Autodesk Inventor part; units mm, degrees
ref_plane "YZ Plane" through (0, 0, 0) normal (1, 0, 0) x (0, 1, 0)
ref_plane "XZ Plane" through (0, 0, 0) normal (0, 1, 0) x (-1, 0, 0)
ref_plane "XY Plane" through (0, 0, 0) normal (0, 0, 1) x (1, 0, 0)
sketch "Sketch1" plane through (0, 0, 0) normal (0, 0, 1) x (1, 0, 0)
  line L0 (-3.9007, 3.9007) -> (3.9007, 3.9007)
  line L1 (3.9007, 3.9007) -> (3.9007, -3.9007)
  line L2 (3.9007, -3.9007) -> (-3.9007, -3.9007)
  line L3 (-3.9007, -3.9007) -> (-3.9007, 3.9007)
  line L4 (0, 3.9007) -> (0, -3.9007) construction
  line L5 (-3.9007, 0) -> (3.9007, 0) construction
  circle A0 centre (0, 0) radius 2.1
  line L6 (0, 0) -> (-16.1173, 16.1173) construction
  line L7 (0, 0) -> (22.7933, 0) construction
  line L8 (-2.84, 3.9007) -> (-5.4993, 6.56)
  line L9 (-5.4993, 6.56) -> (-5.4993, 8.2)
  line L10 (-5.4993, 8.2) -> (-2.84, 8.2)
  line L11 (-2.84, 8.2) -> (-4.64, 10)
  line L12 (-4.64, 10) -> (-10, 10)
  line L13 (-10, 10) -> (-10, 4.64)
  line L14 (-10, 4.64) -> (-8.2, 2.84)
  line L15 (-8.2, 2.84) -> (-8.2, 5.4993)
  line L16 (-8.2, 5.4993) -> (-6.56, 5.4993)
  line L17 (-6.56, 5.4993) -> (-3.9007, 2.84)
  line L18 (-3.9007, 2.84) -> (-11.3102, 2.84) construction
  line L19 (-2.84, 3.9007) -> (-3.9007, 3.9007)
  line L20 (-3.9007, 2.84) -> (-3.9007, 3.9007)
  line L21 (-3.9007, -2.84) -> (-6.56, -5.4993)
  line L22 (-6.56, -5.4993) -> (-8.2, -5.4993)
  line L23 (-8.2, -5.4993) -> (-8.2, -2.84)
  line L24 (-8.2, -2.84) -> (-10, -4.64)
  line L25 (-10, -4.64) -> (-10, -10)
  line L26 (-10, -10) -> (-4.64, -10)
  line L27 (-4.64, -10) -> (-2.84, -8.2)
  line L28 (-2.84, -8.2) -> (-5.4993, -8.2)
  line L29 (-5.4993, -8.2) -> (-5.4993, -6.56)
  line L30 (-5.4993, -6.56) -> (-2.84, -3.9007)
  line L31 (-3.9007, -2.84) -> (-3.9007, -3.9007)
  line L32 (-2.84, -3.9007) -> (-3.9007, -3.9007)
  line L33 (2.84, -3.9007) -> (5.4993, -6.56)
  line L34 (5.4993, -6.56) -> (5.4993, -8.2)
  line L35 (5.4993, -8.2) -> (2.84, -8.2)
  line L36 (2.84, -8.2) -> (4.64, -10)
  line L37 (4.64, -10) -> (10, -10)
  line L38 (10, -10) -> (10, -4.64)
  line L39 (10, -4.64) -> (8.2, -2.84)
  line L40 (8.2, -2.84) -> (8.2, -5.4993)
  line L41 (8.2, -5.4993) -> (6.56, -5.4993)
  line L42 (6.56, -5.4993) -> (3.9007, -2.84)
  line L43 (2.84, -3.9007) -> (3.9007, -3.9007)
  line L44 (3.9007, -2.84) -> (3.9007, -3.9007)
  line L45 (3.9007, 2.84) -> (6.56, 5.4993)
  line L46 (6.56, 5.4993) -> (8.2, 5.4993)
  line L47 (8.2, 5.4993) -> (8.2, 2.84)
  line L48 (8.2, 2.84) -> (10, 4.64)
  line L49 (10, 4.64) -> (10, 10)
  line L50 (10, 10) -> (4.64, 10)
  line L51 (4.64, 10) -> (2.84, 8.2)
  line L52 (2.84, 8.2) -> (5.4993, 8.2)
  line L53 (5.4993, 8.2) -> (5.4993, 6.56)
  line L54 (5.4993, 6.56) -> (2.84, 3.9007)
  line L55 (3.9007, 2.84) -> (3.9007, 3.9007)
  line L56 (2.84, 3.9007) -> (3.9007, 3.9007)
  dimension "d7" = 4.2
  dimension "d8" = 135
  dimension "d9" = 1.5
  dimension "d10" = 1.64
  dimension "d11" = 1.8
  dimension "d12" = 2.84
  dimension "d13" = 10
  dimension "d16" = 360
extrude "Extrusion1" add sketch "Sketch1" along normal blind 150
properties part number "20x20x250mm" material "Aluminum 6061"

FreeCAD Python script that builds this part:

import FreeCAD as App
import Part
import Sketcher

V = App.Vector
Q = App.Units.Quantity

doc = App.newDocument("Part")
body = doc.addObject("PartDesign::Body", "Body")

# Sketch on XY plane
sketch1 = doc.addObject("Sketcher::SketchObject", "Sketch")
body.addObject(sketch1)
sketch1.AttachmentSupport = (doc.XY_Plane, [""])
sketch1.MapMode = "FlatFace"
sketch1.addGeometry([
    Part.LineSegment(V(-6.6, 5.5, 0), V(-3.9, 2.8, 0)),  # 0
    Part.LineSegment(V(-3.9, 2.8, 0), V(-3.9, -2.8, 0)),  # 1
    Part.LineSegment(V(-3.9, -2.8, 0), V(-6.6, -5.5, 0)),  # 2
    Part.LineSegment(V(-6.6, -5.5, 0), V(-8.2, -5.5, 0)),  # 3
    Part.LineSegment(V(-8.2, -5.5, 0), V(-8.2, -2.8, 0)),  # 4
    Part.LineSegment(V(-8.2, -2.8, 0), V(-10, -4.6, 0)),  # 5
    Part.LineSegment(V(-10, -4.6, 0), V(-10, -10, 0)),  # 6
    Part.LineSegment(V(-10, -10, 0), V(-4.6, -10, 0)),  # 7
    Part.LineSegment(V(-4.6, -10, 0), V(-2.8, -8.2, 0)),  # 8
    Part.LineSegment(V(-2.8, -8.2, 0), V(-5.5, -8.2, 0)),  # 9
    Part.LineSegment(V(-5.5, -8.2, 0), V(-5.5, -6.6, 0)),  # 10
    Part.LineSegment(V(-5.5, -6.6, 0), V(-2.8, -3.9, 0)),  # 11
    Part.LineSegment(V(-2.8, -3.9, 0), V(2.8, -3.9, 0)),  # 12
    Part.LineSegment(V(2.8, -3.9, 0), V(5.5, -6.6, 0)),  # 13
    Part.LineSegment(V(5.5, -6.6, 0), V(5.5, -8.2, 0)),  # 14
    Part.LineSegment(V(5.5, -8.2, 0), V(2.8, -8.2, 0)),  # 15
    Part.LineSegment(V(2.8, -8.2, 0), V(4.6, -10, 0)),  # 16
    Part.LineSegment(V(4.6, -10, 0), V(10, -10, 0)),  # 17
    Part.LineSegment(V(10, -10, 0), V(10, -4.6, 0)),  # 18
    Part.LineSegment(V(10, -4.6, 0), V(8.2, -2.8, 0)),  # 19
    Part.LineSegment(V(8.2, -2.8, 0), V(8.2, -5.5, 0)),  # 20
    Part.LineSegment(V(8.2, -5.5, 0), V(6.6, -5.5, 0)),  # 21
    Part.LineSegment(V(6.6, -5.5, 0), V(3.9, -2.8, 0)),  # 22
    Part.LineSegment(V(3.9, -2.8, 0), V(3.9, 2.8, 0)),  # 23
    Part.LineSegment(V(3.9, 2.8, 0), V(6.6, 5.5, 0)),  # 24
    Part.LineSegment(V(6.6, 5.5, 0), V(8.2, 5.5, 0)),  # 25
    Part.LineSegment(V(8.2, 5.5, 0), V(8.2, 2.8, 0)),  # 26
    Part.LineSegment(V(8.2, 2.8, 0), V(10, 4.6, 0)),  # 27
    Part.LineSegment(V(10, 4.6, 0), V(10, 10, 0)),  # 28
    Part.LineSegment(V(10, 10, 0), V(4.6, 10, 0)),  # 29
    Part.LineSegment(V(4.6, 10, 0), V(2.8, 8.2, 0)),  # 30
    Part.LineSegment(V(2.8, 8.2, 0), V(5.5, 8.2, 0)),  # 31
    Part.LineSegment(V(5.5, 8.2, 0), V(5.5, 6.6, 0)),  # 32
    Part.LineSegment(V(5.5, 6.6, 0), V(2.8, 3.9, 0)),  # 33
    Part.LineSegment(V(2.8, 3.9, 0), V(-2.8, 3.9, 0)),  # 34
    Part.LineSegment(V(-2.8, 3.9, 0), V(-5.5, 6.6, 0)),  # 35
    Part.LineSegment(V(-5.5, 6.6, 0), V(-5.5, 8.2, 0)),  # 36
    Part.LineSegment(V(-5.5, 8.2, 0), V(-2.8, 8.2, 0)),  # 37
    Part.LineSegment(V(-2.8, 8.2, 0), V(-4.6, 10, 0)),  # 38
    Part.LineSegment(V(-4.6, 10, 0), V(-10, 10, 0)),  # 39
    Part.LineSegment(V(-10, 10, 0), V(-10, 4.6, 0)),  # 40
    Part.LineSegment(V(-10, 4.6, 0), V(-8.2, 2.8, 0)),  # 41
    Part.LineSegment(V(-8.2, 2.8, 0), V(-8.2, 5.5, 0)),  # 42
    Part.LineSegment(V(-8.2, 5.5, 0), V(-6.6, 5.5, 0)),  # 43
    Part.Circle(V(0, 0, 0), V(0, 0, 1), 2.1),  # 44
], False)
sketch1.addConstraint([
    Sketcher.Constraint("Coincident", 0, 2, 1, 1),
    Sketcher.Constraint("Coincident", 1, 2, 2, 1),
    Sketcher.Constraint("Coincident", 2, 2, 3, 1),
    Sketcher.Constraint("Coincident", 3, 2, 4, 1),
    Sketcher.Constraint("Coincident", 4, 2, 5, 1),
    Sketcher.Constraint("Coincident", 5, 2, 6, 1),
    Sketcher.Constraint("Coincident", 6, 2, 7, 1),
    Sketcher.Constraint("Coincident", 7, 2, 8, 1),
    Sketcher.Constraint("Coincident", 8, 2, 9, 1),
    Sketcher.Constraint("Coincident", 9, 2, 10, 1),
    Sketcher.Constraint("Coincident", 10, 2, 11, 1),
    Sketcher.Constraint("Coincident", 11, 2, 12, 1),
    Sketcher.Constraint("Coincident", 12, 2, 13, 1),
    Sketcher.Constraint("Coincident", 13, 2, 14, 1),
    Sketcher.Constraint("Coincident", 14, 2, 15, 1),
    Sketcher.Constraint("Coincident", 15, 2, 16, 1),
    Sketcher.Constraint("Coincident", 16, 2, 17, 1),
    Sketcher.Constraint("Coincident", 17, 2, 18, 1),
    Sketcher.Constraint("Coincident", 18, 2, 19, 1),
    Sketcher.Constraint("Coincident", 19, 2, 20, 1),
    Sketcher.Constraint("Coincident", 20, 2, 21, 1),
    Sketcher.Constraint("Coincident", 21, 2, 22, 1),
    Sketcher.Constraint("Coincident", 22, 2, 23, 1),
    Sketcher.Constraint("Coincident", 23, 2, 24, 1),
    Sketcher.Constraint("Coincident", 24, 2, 25, 1),
    Sketcher.Constraint("Coincident", 25, 2, 26, 1),
    Sketcher.Constraint("Coincident", 26, 2, 27, 1),
    Sketcher.Constraint("Coincident", 27, 2, 28, 1),
    Sketcher.Constraint("Coincident", 28, 2, 29, 1),
    Sketcher.Constraint("Coincident", 29, 2, 30, 1),
    Sketcher.Constraint("Coincident", 30, 2, 31, 1),
    Sketcher.Constraint("Coincident", 31, 2, 32, 1),
    Sketcher.Constraint("Coincident", 32, 2, 33, 1),
    Sketcher.Constraint("Coincident", 33, 2, 34, 1),
    Sketcher.Constraint("Coincident", 34, 2, 35, 1),
    Sketcher.Constraint("Coincident", 35, 2, 36, 1),
    Sketcher.Constraint("Coincident", 36, 2, 37, 1),
    Sketcher.Constraint("Coincident", 37, 2, 38, 1),
    Sketcher.Constraint("Coincident", 38, 2, 39, 1),
    Sketcher.Constraint("Coincident", 39, 2, 40, 1),
    Sketcher.Constraint("Coincident", 40, 2, 41, 1),
    Sketcher.Constraint("Coincident", 41, 2, 42, 1),
    Sketcher.Constraint("Coincident", 42, 2, 43, 1),
    Sketcher.Constraint("Coincident", 43, 2, 0, 1),
    Sketcher.Constraint("Vertical", 1),
    Sketcher.Constraint("Horizontal", 3),
    Sketcher.Constraint("Vertical", 4),
    Sketcher.Constraint("Vertical", 6),
    Sketcher.Constraint("Horizontal", 7),
    Sketcher.Constraint("Horizontal", 9),
    Sketcher.Constraint("Vertical", 10),
    Sketcher.Constraint("Horizontal", 12),
    Sketcher.Constraint("Vertical", 14),
    Sketcher.Constraint("Horizontal", 15),
    Sketcher.Constraint("Horizontal", 17),
    Sketcher.Constraint("Vertical", 18),
    Sketcher.Constraint("Vertical", 20),
    Sketcher.Constraint("Horizontal", 21),
    Sketcher.Constraint("Vertical", 23),
    Sketcher.Constraint("Horizontal", 25),
    Sketcher.Constraint("Vertical", 26),
    Sketcher.Constraint("Vertical", 28),
    Sketcher.Constraint("Horizontal", 29),
    Sketcher.Constraint("Horizontal", 31),
    Sketcher.Constraint("Vertical", 32),
    Sketcher.Constraint("Horizontal", 34),
    Sketcher.Constraint("Vertical", 36),
    Sketcher.Constraint("Horizontal", 37),
    Sketcher.Constraint("Horizontal", 39),
    Sketcher.Constraint("Vertical", 40),
    Sketcher.Constraint("Vertical", 42),
    Sketcher.Constraint("Horizontal", 43),
    Sketcher.Constraint("Coincident", 44, 3, -1, 1),
    Sketcher.Constraint("Symmetric", 0, 2, 22, 2, -1, 1),
    Sketcher.Constraint("Symmetric", 2, 2, 24, 2, -1, 1),
    Sketcher.Constraint("Symmetric", 4, 2, 26, 2, -1, 1),
    Sketcher.Constraint("Symmetric", 5, 2, 27, 2, -1, 1),
    Sketcher.Constraint("Symmetric", 7, 2, 29, 2, -1, 1),
    Sketcher.Constraint("Symmetric", 8, 2, 30, 2, -1, 1),
    Sketcher.Constraint("Symmetric", 10, 2, 32, 2, -1, 1),
    Sketcher.Constraint("Symmetric", 11, 2, 33, 2, -1, 1),
    Sketcher.Constraint("Symmetric", 13, 2, 35, 2, -1, 1),
    Sketcher.Constraint("Symmetric", 15, 2, 37, 2, -1, 1),
    Sketcher.Constraint("Symmetric", 16, 2, 38, 2, -1, 1),
    Sketcher.Constraint("Symmetric", 18, 2, 40, 2, -1, 1),
    Sketcher.Constraint("Symmetric", 19, 2, 41, 2, -1, 1),
    Sketcher.Constraint("Symmetric", 21, 2, 43, 2, -1, 1),
    Sketcher.Constraint("Symmetric", 10, 2, 13, 2, -2),
    Sketcher.Constraint("Symmetric", 8, 2, 15, 2, -2),
    Sketcher.Constraint("Symmetric", 7, 2, 16, 2, -2),
    Sketcher.Constraint("Symmetric", 5, 2, 18, 2, -2),
    Sketcher.Constraint("Symmetric", 4, 2, 19, 2, -2),
    Sketcher.Constraint("Symmetric", 2, 2, 21, 2, -2),
    Sketcher.Constraint("Perpendicular", 0, 2),
    Sketcher.Constraint("Parallel", 2, 5),
    Sketcher.Constraint("Parallel", 5, 8),
    Sketcher.Constraint("Parallel", 8, 11),
    Sketcher.Constraint("Perpendicular", 11, 13),
    Sketcher.Constraint("Parallel", 13, 16),
    Sketcher.Constraint("Perpendicular", 22, 24),
    Sketcher.Constraint("Perpendicular", 33, 35),
    Sketcher.Constraint("Horizontal", 1, 2, 4, 2),
    Sketcher.Constraint("Vertical", 8, 2, 11, 2),
    Sketcher.Constraint("Equal", 34, 1),
    Sketcher.Constraint("Equal", 37, 4),
    Sketcher.Constraint("Equal", 39, 6),
    Sketcher.Constraint("Equal", 43, 10),
    Sketcher.Constraint("Equal", 5, 8),
    Sketcher.Constraint("Diameter", 44, Q("4.2 mm")),
    Sketcher.Constraint("DistanceX", 5, 2, -1, 1, Q("10 mm")),
    Sketcher.Constraint("DistanceX", 3, 2, 3, 1, Q("1.64 mm")),
    Sketcher.Constraint("DistanceX", 5, 2, 3, 2, Q("1.8 mm")),
    Sketcher.Constraint("DistanceY", -1, 1, 0, 2, Q("2.84 mm")),
    Sketcher.Constraint("DistanceX", 9, 2, 9, 1, Q("2.6593 mm")),
])
pad1 = doc.addObject("PartDesign::Pad", "Pad")
body.addObject(pad1)
pad1.Profile = sketch1
pad1.Length = 150

doc.recompute()
